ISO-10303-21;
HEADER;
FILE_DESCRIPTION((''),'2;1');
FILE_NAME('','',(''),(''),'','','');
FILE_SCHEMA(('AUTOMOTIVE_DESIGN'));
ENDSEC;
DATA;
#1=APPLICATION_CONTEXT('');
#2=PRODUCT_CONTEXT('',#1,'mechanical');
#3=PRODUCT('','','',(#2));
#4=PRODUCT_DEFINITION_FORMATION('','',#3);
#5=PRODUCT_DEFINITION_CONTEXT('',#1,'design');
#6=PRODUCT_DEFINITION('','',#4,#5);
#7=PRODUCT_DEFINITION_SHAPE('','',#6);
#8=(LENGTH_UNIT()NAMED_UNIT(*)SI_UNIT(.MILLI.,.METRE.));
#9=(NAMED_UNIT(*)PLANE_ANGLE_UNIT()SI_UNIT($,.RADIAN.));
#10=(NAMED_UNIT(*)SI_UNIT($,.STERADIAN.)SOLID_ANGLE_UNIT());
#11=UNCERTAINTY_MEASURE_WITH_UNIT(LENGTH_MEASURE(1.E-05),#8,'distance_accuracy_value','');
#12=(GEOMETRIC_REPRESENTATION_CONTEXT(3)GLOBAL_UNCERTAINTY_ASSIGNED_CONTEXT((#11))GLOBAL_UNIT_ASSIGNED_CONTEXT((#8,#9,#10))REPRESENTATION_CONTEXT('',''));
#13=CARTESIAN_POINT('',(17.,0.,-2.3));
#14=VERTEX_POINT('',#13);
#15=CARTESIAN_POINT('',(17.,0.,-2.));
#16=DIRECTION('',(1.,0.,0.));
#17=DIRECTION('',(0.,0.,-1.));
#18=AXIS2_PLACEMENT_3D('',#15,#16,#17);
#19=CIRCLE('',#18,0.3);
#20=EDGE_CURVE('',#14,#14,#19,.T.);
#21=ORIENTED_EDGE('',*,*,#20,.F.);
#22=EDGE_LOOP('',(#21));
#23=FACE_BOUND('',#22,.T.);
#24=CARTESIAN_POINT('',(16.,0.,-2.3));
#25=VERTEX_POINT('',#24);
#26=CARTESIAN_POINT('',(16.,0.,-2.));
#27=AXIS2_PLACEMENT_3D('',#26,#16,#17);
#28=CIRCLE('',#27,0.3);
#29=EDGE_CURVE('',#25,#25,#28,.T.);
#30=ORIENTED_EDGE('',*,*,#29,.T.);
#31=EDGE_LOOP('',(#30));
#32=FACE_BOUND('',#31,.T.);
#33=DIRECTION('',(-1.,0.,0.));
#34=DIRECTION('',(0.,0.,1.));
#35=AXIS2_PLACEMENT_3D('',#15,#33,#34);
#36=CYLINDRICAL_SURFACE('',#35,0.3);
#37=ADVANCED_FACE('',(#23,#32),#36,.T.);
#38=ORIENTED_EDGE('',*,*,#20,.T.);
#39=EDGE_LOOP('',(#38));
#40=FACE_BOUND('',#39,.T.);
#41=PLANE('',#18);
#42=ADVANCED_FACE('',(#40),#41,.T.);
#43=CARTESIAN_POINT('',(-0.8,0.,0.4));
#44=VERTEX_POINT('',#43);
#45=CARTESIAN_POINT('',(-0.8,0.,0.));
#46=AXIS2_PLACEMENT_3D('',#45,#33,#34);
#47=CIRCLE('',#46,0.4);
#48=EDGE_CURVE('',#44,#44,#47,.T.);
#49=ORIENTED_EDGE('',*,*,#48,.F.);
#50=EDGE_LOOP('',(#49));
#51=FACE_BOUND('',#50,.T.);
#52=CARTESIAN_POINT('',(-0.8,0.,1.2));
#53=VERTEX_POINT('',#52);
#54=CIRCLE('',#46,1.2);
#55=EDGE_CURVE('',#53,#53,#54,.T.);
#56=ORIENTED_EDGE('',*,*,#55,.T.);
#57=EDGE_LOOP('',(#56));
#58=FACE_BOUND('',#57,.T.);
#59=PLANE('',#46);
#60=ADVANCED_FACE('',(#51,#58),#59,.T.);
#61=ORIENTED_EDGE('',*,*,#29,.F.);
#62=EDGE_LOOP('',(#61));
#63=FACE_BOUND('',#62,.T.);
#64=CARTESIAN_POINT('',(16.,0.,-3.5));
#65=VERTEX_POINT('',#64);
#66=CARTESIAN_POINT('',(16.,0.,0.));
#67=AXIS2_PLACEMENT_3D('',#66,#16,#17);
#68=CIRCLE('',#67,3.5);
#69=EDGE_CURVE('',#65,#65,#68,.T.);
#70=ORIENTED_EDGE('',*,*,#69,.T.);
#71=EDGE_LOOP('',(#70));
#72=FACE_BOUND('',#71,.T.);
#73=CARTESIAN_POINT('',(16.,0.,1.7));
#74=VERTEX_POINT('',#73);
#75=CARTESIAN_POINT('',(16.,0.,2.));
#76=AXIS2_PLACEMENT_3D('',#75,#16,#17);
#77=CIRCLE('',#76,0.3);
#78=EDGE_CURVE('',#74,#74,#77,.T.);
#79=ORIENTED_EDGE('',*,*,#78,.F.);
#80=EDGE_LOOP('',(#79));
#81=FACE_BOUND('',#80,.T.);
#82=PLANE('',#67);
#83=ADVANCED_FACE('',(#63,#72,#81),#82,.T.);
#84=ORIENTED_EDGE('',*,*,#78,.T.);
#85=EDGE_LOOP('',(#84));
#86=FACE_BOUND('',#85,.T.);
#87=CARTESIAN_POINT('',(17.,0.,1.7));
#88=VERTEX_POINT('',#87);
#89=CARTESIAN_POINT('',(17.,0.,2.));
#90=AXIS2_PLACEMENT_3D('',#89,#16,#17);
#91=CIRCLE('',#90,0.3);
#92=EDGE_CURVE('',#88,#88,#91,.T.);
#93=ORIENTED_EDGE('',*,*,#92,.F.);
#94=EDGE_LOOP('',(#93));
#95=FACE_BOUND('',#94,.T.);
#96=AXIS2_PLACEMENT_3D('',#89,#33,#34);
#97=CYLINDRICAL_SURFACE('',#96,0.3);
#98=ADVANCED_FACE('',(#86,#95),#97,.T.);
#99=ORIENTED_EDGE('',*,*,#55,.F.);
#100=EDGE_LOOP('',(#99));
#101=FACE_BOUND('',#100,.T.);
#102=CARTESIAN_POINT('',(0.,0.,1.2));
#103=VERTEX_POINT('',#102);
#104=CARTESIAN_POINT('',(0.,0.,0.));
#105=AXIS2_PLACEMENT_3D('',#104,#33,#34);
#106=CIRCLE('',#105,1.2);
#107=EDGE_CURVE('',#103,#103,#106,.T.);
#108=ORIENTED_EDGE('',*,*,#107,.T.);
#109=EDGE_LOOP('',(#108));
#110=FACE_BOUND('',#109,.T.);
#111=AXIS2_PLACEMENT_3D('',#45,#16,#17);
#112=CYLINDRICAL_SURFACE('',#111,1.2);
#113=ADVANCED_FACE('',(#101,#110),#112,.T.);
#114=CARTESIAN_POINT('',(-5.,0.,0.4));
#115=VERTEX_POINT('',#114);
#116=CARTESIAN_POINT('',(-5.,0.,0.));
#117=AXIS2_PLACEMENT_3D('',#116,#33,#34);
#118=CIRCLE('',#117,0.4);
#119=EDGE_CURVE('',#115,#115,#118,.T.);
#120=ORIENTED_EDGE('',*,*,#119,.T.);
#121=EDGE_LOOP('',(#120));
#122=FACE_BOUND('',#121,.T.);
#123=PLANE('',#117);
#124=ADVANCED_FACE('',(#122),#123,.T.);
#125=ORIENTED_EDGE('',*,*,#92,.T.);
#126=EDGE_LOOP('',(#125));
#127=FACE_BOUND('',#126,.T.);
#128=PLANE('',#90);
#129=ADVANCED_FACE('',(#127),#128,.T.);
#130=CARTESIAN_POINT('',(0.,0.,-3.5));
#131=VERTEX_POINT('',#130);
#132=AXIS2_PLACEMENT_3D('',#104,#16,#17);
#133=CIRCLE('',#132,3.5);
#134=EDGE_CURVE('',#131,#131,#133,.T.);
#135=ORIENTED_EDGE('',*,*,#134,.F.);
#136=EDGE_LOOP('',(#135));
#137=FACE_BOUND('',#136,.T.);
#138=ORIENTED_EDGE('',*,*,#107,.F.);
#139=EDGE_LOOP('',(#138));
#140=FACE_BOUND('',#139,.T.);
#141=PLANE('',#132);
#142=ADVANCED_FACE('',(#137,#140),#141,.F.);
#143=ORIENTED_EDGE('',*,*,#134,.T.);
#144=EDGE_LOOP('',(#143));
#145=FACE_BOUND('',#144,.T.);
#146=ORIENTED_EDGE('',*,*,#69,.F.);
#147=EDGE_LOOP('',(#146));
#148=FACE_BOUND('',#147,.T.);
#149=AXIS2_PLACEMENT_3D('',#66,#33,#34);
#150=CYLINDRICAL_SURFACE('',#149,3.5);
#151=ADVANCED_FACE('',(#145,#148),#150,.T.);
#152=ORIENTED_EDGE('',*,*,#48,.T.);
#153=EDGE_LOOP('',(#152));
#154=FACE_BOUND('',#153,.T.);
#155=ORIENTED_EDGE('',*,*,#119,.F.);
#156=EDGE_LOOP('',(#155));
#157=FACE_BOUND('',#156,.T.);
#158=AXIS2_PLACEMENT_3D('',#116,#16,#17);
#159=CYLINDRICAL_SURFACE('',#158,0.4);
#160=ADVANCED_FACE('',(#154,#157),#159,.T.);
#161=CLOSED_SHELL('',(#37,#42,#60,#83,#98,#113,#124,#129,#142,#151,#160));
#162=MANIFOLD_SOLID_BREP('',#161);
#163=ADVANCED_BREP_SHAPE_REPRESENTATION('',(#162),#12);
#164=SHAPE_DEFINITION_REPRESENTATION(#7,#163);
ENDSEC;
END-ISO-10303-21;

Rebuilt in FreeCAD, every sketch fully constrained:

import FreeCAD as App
import Part
import Sketcher
from FreeCAD import Vector
Q = App.Units.Quantity

doc = App.newDocument("Part")
body = doc.addObject("PartDesign::Body", "Body")

sketch1 = body.newObject("Sketcher::SketchObject", "Sketch")
sketch1.AttachmentSupport = (doc.getObject("YZ_Plane"), [""])
sketch1.MapMode = "FlatFace"
sketch1.addGeometry(Part.Circle(Vector(0, 0, 0), Vector(0, 0, 1), 3.5), False)
sketch1.addConstraint([
    Sketcher.Constraint("Coincident", 0, 3, -1, 1),
    Sketcher.Constraint("Diameter", 0, Q("7 mm")),
])
pad1 = body.newObject("PartDesign::Pad", "Pad")
pad1.Profile = sketch1
pad1.Length = 16

sketch2 = body.newObject("Sketcher::SketchObject", "Sketch001")
sketch2.AttachmentSupport = (doc.getObject("YZ_Plane"), [""])
sketch2.MapMode = "FlatFace"
sketch2.addGeometry(Part.Circle(Vector(0, 0, 0), Vector(0, 0, 1), 1.2), False)
sketch2.addConstraint([
    Sketcher.Constraint("Coincident", 0, 3, -1, 1),
    Sketcher.Constraint("Diameter", 0, Q("2.4 mm")),
])
pad2 = body.newObject("PartDesign::Pad", "Pad001")
pad2.Profile = sketch2
pad2.Length = 0.8
pad2.Reversed = True

sketch3 = body.newObject("Sketcher::SketchObject", "Sketch002")
sketch3.AttachmentSupport = (doc.getObject("YZ_Plane"), [""])
sketch3.MapMode = "FlatFace"
sketch3.AttachmentOffset = App.Placement(Vector(0, 0, -0.8), App.Rotation())
sketch3.addGeometry(Part.Circle(Vector(0, 0, 0), Vector(0, 0, 1), 0.4), False)
sketch3.addConstraint([
    Sketcher.Constraint("Coincident", 0, 3, -1, 1),
    Sketcher.Constraint("Diameter", 0, Q("0.8 mm")),
])
pad3 = body.newObject("PartDesign::Pad", "Pad002")
pad3.Profile = sketch3
pad3.Length = 4.2
pad3.Reversed = True

sketch4 = body.newObject("Sketcher::SketchObject", "Sketch003")
sketch4.AttachmentSupport = (doc.getObject("YZ_Plane"), [""])
sketch4.MapMode = "FlatFace"
sketch4.AttachmentOffset = App.Placement(Vector(0, 0, 16), App.Rotation())
sketch4.addGeometry([
    Part.Circle(Vector(0, 2, 0), Vector(0, 0, 1), 0.3),
    Part.Circle(Vector(0, -2, 0), Vector(0, 0, 1), 0.3),
], False)
sketch4.addConstraint([
    Sketcher.Constraint("Equal", 0, 1),
    Sketcher.Constraint("Symmetric", 0, 3, 1, 3, -1, 1),
    Sketcher.Constraint("PointOnObject", 0, 3, -2),
    Sketcher.Constraint("Diameter", 0, Q("0.6 mm")),
    Sketcher.Constraint("DistanceY", -1, 1, 0, 3, Q("2 mm")),
])
pad4 = body.newObject("PartDesign::Pad", "Pad003")
pad4.Profile = sketch4
pad4.Length = 1

doc.recompute()
